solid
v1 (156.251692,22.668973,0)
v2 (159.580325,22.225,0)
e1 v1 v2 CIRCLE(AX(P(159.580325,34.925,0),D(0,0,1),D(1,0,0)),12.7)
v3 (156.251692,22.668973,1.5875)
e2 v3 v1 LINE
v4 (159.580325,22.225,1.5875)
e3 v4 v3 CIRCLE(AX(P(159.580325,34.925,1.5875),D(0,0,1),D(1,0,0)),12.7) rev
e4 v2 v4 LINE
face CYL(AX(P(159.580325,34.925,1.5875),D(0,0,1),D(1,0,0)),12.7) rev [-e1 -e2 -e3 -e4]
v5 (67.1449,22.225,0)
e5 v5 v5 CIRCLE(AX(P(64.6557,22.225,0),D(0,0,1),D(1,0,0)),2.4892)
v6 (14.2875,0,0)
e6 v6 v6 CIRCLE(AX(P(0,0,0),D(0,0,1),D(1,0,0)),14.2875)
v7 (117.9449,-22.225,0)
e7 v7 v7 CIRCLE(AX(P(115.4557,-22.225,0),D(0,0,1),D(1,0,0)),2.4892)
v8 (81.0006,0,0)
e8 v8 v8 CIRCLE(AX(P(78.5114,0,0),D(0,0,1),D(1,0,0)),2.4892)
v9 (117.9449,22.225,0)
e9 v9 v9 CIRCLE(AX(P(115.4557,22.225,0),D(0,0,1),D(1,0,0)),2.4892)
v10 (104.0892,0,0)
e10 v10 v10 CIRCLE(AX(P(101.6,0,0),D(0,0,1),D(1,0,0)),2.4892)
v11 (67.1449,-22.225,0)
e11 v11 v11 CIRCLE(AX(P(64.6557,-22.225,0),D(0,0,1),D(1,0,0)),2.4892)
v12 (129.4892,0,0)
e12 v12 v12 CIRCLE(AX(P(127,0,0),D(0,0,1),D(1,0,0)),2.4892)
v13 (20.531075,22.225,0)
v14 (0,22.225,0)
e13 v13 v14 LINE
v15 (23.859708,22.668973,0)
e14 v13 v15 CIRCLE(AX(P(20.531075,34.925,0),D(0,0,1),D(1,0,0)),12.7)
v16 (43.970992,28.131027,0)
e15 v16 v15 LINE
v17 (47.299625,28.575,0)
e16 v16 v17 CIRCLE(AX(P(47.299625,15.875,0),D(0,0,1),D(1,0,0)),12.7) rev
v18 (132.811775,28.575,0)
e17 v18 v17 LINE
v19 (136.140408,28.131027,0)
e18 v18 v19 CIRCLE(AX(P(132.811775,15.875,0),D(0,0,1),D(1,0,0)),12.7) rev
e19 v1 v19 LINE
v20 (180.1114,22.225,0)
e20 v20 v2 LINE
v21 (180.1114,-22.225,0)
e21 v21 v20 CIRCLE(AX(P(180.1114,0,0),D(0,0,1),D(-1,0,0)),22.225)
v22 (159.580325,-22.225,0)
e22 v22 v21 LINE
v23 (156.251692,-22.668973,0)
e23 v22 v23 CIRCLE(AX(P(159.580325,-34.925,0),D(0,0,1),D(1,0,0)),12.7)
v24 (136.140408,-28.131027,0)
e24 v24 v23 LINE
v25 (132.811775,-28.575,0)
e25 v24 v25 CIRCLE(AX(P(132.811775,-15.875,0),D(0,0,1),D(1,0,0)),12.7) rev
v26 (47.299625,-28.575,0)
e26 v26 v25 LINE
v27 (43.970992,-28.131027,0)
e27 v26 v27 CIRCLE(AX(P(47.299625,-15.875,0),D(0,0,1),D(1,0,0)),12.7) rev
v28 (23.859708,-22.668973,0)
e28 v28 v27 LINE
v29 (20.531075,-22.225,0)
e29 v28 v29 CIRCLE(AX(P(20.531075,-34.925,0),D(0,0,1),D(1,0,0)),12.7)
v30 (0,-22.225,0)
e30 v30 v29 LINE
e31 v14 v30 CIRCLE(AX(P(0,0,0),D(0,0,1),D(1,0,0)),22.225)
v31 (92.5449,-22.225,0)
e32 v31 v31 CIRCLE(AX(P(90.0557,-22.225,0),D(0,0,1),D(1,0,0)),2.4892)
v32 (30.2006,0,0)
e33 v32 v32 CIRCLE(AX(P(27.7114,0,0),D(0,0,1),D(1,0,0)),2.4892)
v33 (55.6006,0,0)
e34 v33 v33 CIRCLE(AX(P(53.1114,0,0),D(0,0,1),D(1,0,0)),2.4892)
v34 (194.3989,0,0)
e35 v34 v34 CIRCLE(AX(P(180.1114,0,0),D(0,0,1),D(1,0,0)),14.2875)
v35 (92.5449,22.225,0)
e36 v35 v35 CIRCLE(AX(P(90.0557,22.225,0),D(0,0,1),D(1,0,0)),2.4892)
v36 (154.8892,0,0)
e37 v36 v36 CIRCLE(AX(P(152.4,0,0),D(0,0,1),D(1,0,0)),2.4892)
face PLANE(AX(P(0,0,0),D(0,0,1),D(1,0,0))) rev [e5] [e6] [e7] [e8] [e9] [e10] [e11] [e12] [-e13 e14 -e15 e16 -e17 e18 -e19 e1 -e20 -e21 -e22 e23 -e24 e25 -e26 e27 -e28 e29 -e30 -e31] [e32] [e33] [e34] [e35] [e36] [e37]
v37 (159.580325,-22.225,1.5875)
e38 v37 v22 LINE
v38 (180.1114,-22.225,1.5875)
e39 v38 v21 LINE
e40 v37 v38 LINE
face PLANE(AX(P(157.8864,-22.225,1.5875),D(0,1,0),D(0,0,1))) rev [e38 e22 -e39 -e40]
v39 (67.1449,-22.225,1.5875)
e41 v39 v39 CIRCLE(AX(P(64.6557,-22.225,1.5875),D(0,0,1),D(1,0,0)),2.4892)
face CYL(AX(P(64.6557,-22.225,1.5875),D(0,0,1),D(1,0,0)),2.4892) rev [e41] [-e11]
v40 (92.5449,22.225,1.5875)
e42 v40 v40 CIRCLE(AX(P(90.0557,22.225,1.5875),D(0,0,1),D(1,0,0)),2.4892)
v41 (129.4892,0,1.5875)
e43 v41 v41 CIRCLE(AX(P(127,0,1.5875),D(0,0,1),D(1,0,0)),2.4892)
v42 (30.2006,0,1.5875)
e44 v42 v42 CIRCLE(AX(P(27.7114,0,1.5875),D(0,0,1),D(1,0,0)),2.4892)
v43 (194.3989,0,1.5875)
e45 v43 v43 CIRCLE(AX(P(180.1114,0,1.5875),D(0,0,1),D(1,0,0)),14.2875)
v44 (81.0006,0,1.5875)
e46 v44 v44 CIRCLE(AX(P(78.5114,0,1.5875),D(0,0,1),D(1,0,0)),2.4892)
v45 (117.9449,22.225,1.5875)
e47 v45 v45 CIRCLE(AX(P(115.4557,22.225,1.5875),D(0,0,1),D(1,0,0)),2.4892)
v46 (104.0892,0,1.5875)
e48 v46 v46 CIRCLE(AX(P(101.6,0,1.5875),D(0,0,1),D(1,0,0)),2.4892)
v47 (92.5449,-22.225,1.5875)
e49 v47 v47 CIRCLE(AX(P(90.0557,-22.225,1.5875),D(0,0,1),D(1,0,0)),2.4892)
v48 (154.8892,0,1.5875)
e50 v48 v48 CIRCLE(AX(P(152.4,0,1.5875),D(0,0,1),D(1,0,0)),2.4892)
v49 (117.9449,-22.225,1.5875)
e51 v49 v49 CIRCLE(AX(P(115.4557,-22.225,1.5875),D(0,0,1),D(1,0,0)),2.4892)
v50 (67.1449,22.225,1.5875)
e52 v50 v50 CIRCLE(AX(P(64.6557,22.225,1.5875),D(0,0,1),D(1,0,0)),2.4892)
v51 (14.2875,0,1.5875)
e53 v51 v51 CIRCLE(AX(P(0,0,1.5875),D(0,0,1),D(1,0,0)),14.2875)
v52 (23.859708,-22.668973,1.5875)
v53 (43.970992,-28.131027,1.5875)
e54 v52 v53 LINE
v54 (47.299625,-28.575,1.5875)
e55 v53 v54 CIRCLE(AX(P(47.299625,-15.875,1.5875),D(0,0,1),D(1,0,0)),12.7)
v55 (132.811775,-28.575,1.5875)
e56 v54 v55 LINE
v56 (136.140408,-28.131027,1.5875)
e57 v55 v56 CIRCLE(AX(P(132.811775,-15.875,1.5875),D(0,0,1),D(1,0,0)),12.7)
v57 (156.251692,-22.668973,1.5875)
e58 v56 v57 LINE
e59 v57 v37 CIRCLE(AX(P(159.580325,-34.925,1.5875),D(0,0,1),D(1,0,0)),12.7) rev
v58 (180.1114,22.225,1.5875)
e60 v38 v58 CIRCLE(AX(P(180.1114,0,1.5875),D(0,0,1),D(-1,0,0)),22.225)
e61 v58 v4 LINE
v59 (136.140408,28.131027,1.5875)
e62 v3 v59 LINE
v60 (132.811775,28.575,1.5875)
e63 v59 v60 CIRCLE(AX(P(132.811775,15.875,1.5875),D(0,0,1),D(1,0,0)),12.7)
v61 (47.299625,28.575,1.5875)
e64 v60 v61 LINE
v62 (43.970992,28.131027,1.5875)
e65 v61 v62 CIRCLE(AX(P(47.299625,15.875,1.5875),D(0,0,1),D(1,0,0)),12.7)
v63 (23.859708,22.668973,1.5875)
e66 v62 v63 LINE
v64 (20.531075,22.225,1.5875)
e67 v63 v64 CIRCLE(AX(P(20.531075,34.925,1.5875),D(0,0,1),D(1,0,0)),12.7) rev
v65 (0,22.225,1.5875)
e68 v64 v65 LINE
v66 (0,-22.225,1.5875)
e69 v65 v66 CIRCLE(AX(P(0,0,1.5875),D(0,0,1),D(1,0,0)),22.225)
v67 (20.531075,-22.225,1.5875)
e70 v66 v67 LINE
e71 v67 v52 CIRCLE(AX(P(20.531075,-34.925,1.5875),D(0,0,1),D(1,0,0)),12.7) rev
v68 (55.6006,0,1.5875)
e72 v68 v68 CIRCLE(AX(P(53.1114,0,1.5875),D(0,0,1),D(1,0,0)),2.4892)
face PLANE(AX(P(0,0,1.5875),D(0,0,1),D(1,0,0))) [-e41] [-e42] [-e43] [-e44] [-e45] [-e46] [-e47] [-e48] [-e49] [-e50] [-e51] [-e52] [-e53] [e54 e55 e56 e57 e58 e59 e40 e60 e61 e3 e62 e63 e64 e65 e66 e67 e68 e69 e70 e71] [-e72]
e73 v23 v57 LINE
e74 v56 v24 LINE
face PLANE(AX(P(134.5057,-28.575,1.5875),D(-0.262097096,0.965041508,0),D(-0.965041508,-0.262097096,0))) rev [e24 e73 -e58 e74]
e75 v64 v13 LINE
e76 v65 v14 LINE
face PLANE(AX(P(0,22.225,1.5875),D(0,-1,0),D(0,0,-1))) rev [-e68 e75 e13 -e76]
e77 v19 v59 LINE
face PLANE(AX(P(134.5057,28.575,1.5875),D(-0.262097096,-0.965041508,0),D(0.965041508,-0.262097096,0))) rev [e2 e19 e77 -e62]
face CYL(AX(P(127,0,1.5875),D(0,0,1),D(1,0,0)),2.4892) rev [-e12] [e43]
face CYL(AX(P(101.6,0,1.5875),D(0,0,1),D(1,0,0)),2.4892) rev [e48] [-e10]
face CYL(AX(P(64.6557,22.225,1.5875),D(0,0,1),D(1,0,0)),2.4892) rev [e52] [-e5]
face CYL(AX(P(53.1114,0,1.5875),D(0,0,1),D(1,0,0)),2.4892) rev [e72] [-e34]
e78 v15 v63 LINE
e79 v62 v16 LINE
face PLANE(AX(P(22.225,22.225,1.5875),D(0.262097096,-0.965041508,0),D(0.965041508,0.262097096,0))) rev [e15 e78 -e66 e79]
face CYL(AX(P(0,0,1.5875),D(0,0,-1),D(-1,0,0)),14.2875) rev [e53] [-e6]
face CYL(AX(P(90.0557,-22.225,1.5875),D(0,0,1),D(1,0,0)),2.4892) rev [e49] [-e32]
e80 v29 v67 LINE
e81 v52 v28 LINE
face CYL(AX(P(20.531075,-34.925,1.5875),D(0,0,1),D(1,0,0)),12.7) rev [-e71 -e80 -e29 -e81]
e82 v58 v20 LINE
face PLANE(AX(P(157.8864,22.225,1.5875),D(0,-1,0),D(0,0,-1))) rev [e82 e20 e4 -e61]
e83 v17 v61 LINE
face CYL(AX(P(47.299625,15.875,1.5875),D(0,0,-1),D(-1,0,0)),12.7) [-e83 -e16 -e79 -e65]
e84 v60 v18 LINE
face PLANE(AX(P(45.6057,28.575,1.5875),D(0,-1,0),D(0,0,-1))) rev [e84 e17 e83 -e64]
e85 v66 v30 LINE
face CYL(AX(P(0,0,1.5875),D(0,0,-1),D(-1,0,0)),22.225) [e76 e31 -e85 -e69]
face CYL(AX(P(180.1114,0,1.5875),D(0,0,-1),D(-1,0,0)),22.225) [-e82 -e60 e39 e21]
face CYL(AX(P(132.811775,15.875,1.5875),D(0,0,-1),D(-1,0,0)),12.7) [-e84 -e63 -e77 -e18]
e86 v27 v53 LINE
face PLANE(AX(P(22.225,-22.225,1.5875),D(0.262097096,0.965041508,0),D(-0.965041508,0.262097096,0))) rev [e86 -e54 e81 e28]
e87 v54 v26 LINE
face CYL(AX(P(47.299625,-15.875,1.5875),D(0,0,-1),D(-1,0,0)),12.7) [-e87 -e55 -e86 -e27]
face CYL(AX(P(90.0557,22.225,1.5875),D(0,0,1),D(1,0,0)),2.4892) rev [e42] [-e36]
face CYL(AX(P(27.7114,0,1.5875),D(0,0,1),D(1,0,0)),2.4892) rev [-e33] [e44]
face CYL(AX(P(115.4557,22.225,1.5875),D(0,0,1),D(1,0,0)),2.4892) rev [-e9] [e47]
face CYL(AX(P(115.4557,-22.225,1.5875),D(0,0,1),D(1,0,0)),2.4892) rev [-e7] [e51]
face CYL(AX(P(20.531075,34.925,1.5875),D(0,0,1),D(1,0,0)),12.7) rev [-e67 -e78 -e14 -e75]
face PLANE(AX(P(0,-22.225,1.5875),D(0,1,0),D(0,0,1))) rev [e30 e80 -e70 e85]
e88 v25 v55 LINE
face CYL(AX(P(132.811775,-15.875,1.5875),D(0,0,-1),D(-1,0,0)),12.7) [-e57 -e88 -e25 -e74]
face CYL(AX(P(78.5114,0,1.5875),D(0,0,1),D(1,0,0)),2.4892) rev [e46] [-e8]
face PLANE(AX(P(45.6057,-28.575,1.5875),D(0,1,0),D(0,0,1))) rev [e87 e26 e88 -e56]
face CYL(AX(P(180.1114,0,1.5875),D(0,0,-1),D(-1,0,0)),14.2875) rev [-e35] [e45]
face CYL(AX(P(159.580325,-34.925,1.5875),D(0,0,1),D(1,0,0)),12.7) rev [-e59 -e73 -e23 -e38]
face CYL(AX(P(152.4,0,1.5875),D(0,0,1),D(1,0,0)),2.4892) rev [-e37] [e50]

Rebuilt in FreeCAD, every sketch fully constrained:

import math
import FreeCAD as App
import Part
import Sketcher

V = App.Vector
Q = App.Units.Quantity


def edges_at(feature, points):
    """Names of the edges that pass closest to the given points."""
    edges = feature.Shape.Edges
    near = lambda p: min(range(len(edges)), key=lambda i: edges[i].distToShape(Part.Vertex(*p))[0])
    return sorted({f"Edge{near(p) + 1}" for p in points})

doc = App.newDocument("Part")
body = doc.addObject("PartDesign::Body", "Body")

# Sketch on XY plane
sketch1 = doc.addObject("Sketcher::SketchObject", "Sketch")
body.addObject(sketch1)
sketch1.AttachmentSupport = (doc.XY_Plane, [""])
sketch1.MapMode = "FlatFace"
sketch1.addGeometry(Part.LineSegment(V(22, 22, 0), V(0, 22, 0)), False)
sketch1.addGeometry(Part.ArcOfCircle(Part.Circle(V(0, 0, 0), V(0, 0, 1), 22), math.radians(90), math.radians(270)), False)
sketch1.addGeometry(Part.LineSegment(V(0, -22, 0), V(22, -22, 0)), False)
sketch1.addGeometry(Part.LineSegment(V(22, -22, 0), V(46, -29, 0)), False)
sketch1.addGeometry(Part.LineSegment(V(46, -29, 0), V(135, -29, 0)), False)
sketch1.addGeometry(Part.LineSegment(V(135, -29, 0), V(158, -22, 0)), False)
sketch1.addGeometry(Part.LineSegment(V(158, -22, 0), V(180, -22, 0)), False)
sketch1.addGeometry(Part.ArcOfCircle(Part.Circle(V(180, 0, 0), V(0, 0, 1), 22), math.radians(-90), math.radians(90)), False)
sketch1.addGeometry(Part.LineSegment(V(180, 22, 0), V(158, 22, 0)), False)
sketch1.addGeometry(Part.LineSegment(V(158, 22, 0), V(135, 29, 0)), False)
sketch1.addGeometry(Part.LineSegment(V(135, 29, 0), V(46, 29, 0)), False)
sketch1.addGeometry(Part.LineSegment(V(46, 29, 0), V(22, 22, 0)), False)
sketch1.addGeometry(Part.Circle(V(180, 0, 0), V(0, 0, 1), 14), False)
sketch1.addGeometry(Part.Circle(V(0, 0, 0), V(0, 0, 1), 14), False)
sketch1.addConstraint(Sketcher.Constraint("Tangent", 0, 2, 1, 1))
sketch1.addConstraint(Sketcher.Constraint("Tangent", 1, 2, 2, 1))
sketch1.addConstraint(Sketcher.Constraint("Coincident", 2, 2, 3, 1))
sketch1.addConstraint(Sketcher.Constraint("Coincident", 3, 2, 4, 1))
sketch1.addConstraint(Sketcher.Constraint("Coincident", 4, 2, 5, 1))
sketch1.addConstraint(Sketcher.Constraint("Coincident", 5, 2, 6, 1))
sketch1.addConstraint(Sketcher.Constraint("Tangent", 6, 2, 7, 1))
sketch1.addConstraint(Sketcher.Constraint("Tangent", 7, 2, 8, 1))
sketch1.addConstraint(Sketcher.Constraint("Coincident", 8, 2, 9, 1))
sketch1.addConstraint(Sketcher.Constraint("Coincident", 9, 2, 10, 1))
sketch1.addConstraint(Sketcher.Constraint("Coincident", 10, 2, 11, 1))
sketch1.addConstraint(Sketcher.Constraint("Coincident", 11, 2, 0, 1))
sketch1.addConstraint(Sketcher.Constraint("Horizontal", 0))
sketch1.addConstraint(Sketcher.Constraint("Horizontal", 2))
sketch1.addConstraint(Sketcher.Constraint("Horizontal", 4))
sketch1.addConstraint(Sketcher.Constraint("Horizontal", 6))
sketch1.addConstraint(Sketcher.Constraint("Horizontal", 8))
sketch1.addConstraint(Sketcher.Constraint("Horizontal", 10))
sketch1.addConstraint(Sketcher.Constraint("Coincident", 1, 3, -1, 1))
sketch1.addConstraint(Sketcher.Constraint("Coincident", 13, 3, -1, 1))
sketch1.addConstraint(Sketcher.Constraint("Coincident", 12, 3, 7, 3))
sketch1.addConstraint(Sketcher.Constraint("Equal", 1, 7))
sketch1.addConstraint(Sketcher.Constraint("Equal", 12, 13))
sketch1.addConstraint(Sketcher.Constraint("Symmetric", 5, 2, 8, 2, -1))
sketch1.addConstraint(Sketcher.Constraint("Symmetric", 4, 2, 9, 2, -1))
sketch1.addConstraint(Sketcher.Constraint("Parallel", 3, 9))
sketch1.addConstraint(Sketcher.Constraint("Parallel", 5, 11))
sketch1.addConstraint(Sketcher.Constraint("Vertical", 3, 2, 10, 2))
sketch1.addConstraint(Sketcher.Constraint("Equal", 2, 6))
sketch1.addConstraint(Sketcher.Constraint("Diameter", 12, Q("1.125 in")))
sketch1.addConstraint(Sketcher.Constraint("DistanceX", 4, 1, 4, 2, Q("3.5 in")))
sketch1.addConstraint(Sketcher.Constraint("Radius", 1, Q("0.875 in")))
sketch1.addConstraint(Sketcher.Constraint("DistanceY", 3, 2, 0, 2, Q("2 in")))
sketch1.addConstraint(Sketcher.Constraint("DistanceX", 0, 2, 0, 1, Q("0.875 in")))
sketch1.addConstraint(Sketcher.Constraint("DistanceX", -1, 1, 7, 3, Q("7.091 in")))
pad1 = doc.addObject("PartDesign::Pad", "Pad")
body.addObject(pad1)
pad1.Profile = sketch1
pad1.Length = Q("0.0625 in")

# Sketch on XY plane
sketch2 = doc.addObject("Sketcher::SketchObject", "Sketch001")
body.addObject(sketch2)
sketch2.AttachmentSupport = (doc.XY_Plane, [""])
sketch2.MapMode = "FlatFace"
sketch2.AttachmentOffset = App.Placement(V(0, 0, 0.0625 * 25.4), App.Rotation())
sketch2.addGeometry(Part.Circle(V(64.7, -22.2, 0), V(0, 0, 1), 2.5), False)
sketch2.addGeometry(Part.Circle(V(27.7, 0, 0), V(0, 0, 1), 2.5), False)
sketch2.addGeometry(Part.Circle(V(64.7, 22.2, 0), V(0, 0, 1), 2.5), False)
sketch2.addGeometry(Part.Circle(V(90.1, 22.2, 0), V(0, 0, 1), 2.5), False)
sketch2.addGeometry(Part.Circle(V(53.1, 0, 0), V(0, 0, 1), 2.5), False)
sketch2.addGeometry(Part.Circle(V(78.5, 0, 0), V(0, 0, 1), 2.5), False)
sketch2.addGeometry(Part.Circle(V(101.6, 0, 0), V(0, 0, 1), 2.5), False)
sketch2.addGeometry(Part.Circle(V(127, 0, 0), V(0, 0, 1), 2.5), False)
sketch2.addGeometry(Part.Circle(V(115.5, 22.2, 0), V(0, 0, 1), 2.5), False)
sketch2.addGeometry(Part.Circle(V(152.4, 0, 0), V(0, 0, 1), 2.5), False)
sketch2.addGeometry(Part.Circle(V(115.5, -22.2, 0), V(0, 0, 1), 2.5), False)
sketch2.addGeometry(Part.Circle(V(90.1, -22.2, 0), V(0, 0, 1), 2.5), False)
sketch2.addConstraint(Sketcher.Constraint("Equal", 0, 1))
sketch2.addConstraint(Sketcher.Constraint("Equal", 1, 2))
sketch2.addConstraint(Sketcher.Constraint("Equal", 2, 3))
sketch2.addConstraint(Sketcher.Constraint("Equal", 3, 4))
sketch2.addConstraint(Sketcher.Constraint("Equal", 4, 5))
sketch2.addConstraint(Sketcher.Constraint("Equal", 5, 6))
sketch2.addConstraint(Sketcher.Constraint("Equal", 6, 7))
sketch2.addConstraint(Sketcher.Constraint("Equal", 7, 8))
sketch2.addConstraint(Sketcher.Constraint("Equal", 8, 9))
sketch2.addConstraint(Sketcher.Constraint("Equal", 9, 10))
sketch2.addConstraint(Sketcher.Constraint("Equal", 10, 11))
sketch2.addConstraint(Sketcher.Constraint("Symmetric", 0, 3, 2, 3, -1))
sketch2.addConstraint(Sketcher.Constraint("Symmetric", 8, 3, 10, 3, -1))
sketch2.addConstraint(Sketcher.Constraint("Symmetric", 3, 3, 11, 3, -1))
sketch2.addConstraint(Sketcher.Constraint("PointOnObject", 1, 3, -1))
sketch2.addConstraint(Sketcher.Constraint("PointOnObject", 4, 3, -1))
sketch2.addConstraint(Sketcher.Constraint("PointOnObject", 5, 3, -1))
sketch2.addConstraint(Sketcher.Constraint("PointOnObject", 6, 3, -1))
sketch2.addConstraint(Sketcher.Constraint("PointOnObject", 7, 3, -1))
sketch2.addConstraint(Sketcher.Constraint("PointOnObject", 9, 3, -1))
sketch2.addConstraint(Sketcher.Constraint("Horizontal", 2, 3, 3, 3))
sketch2.addConstraint(Sketcher.Constraint("Horizontal", 3, 3, 8, 3))
sketch2.addConstraint(Sketcher.Constraint("Diameter", 0, Q("0.196 in")))
sketch2.addConstraint(Sketcher.Constraint("DistanceX", -1, 1, 6, 3, Q("4 in")))
sketch2.addConstraint(Sketcher.Constraint("DistanceX", -1, 1, 7, 3, Q("5 in")))
sketch2.addConstraint(Sketcher.Constraint("DistanceX", -1, 1, 9, 3, Q("6 in")))
sketch2.addConstraint(Sketcher.Constraint("DistanceX", 2, 3, 3, 3, Q("1 in")))
sketch2.addConstraint(Sketcher.Constraint("DistanceX", 1, 3, 4, 3, Q("1 in")))
sketch2.addConstraint(Sketcher.Constraint("DistanceX", 4, 3, 5, 3, Q("1 in")))
sketch2.addConstraint(Sketcher.Constraint("DistanceX", 3, 3, 8, 3, Q("1 in")))
sketch2.addConstraint(Sketcher.Constraint("DistanceY", 0, 3, 2, 3, Q("1.75 in")))
sketch2.addConstraint(Sketcher.Constraint("DistanceX", -1, 1, 1, 3, Q("1.091 in")))
sketch2.addConstraint(Sketcher.Constraint("DistanceX", -1, 1, 0, 3, Q("2.5455 in")))
doc.recompute()
hole = doc.addObject("PartDesign::Hole", "Hole")
body.addObject(hole)
hole.Profile = sketch2
hole.ThreadType = "None"
hole.Diameter = Q("0.196 in")
hole.DepthType = "ThroughAll"
doc.recompute()

fillet = doc.addObject("PartDesign::Fillet", "Fillet")
body.addObject(fillet)
fillet.Base = (hole, edges_at(hole, [
    (22.225, 22.225, 0.794),
    (45.606, 28.575, 0.794),
    (134.506, 28.575, 0.794),
    (157.886, 22.225, 0.794),
    (157.886, -22.225, 0.794),
    (134.506, -28.575, 0.794),
    (45.606, -28.575, 0.794),
    (22.225, -22.225, 0.794),
]))
fillet.Radius = Q("0.5 in")

doc.recompute()
